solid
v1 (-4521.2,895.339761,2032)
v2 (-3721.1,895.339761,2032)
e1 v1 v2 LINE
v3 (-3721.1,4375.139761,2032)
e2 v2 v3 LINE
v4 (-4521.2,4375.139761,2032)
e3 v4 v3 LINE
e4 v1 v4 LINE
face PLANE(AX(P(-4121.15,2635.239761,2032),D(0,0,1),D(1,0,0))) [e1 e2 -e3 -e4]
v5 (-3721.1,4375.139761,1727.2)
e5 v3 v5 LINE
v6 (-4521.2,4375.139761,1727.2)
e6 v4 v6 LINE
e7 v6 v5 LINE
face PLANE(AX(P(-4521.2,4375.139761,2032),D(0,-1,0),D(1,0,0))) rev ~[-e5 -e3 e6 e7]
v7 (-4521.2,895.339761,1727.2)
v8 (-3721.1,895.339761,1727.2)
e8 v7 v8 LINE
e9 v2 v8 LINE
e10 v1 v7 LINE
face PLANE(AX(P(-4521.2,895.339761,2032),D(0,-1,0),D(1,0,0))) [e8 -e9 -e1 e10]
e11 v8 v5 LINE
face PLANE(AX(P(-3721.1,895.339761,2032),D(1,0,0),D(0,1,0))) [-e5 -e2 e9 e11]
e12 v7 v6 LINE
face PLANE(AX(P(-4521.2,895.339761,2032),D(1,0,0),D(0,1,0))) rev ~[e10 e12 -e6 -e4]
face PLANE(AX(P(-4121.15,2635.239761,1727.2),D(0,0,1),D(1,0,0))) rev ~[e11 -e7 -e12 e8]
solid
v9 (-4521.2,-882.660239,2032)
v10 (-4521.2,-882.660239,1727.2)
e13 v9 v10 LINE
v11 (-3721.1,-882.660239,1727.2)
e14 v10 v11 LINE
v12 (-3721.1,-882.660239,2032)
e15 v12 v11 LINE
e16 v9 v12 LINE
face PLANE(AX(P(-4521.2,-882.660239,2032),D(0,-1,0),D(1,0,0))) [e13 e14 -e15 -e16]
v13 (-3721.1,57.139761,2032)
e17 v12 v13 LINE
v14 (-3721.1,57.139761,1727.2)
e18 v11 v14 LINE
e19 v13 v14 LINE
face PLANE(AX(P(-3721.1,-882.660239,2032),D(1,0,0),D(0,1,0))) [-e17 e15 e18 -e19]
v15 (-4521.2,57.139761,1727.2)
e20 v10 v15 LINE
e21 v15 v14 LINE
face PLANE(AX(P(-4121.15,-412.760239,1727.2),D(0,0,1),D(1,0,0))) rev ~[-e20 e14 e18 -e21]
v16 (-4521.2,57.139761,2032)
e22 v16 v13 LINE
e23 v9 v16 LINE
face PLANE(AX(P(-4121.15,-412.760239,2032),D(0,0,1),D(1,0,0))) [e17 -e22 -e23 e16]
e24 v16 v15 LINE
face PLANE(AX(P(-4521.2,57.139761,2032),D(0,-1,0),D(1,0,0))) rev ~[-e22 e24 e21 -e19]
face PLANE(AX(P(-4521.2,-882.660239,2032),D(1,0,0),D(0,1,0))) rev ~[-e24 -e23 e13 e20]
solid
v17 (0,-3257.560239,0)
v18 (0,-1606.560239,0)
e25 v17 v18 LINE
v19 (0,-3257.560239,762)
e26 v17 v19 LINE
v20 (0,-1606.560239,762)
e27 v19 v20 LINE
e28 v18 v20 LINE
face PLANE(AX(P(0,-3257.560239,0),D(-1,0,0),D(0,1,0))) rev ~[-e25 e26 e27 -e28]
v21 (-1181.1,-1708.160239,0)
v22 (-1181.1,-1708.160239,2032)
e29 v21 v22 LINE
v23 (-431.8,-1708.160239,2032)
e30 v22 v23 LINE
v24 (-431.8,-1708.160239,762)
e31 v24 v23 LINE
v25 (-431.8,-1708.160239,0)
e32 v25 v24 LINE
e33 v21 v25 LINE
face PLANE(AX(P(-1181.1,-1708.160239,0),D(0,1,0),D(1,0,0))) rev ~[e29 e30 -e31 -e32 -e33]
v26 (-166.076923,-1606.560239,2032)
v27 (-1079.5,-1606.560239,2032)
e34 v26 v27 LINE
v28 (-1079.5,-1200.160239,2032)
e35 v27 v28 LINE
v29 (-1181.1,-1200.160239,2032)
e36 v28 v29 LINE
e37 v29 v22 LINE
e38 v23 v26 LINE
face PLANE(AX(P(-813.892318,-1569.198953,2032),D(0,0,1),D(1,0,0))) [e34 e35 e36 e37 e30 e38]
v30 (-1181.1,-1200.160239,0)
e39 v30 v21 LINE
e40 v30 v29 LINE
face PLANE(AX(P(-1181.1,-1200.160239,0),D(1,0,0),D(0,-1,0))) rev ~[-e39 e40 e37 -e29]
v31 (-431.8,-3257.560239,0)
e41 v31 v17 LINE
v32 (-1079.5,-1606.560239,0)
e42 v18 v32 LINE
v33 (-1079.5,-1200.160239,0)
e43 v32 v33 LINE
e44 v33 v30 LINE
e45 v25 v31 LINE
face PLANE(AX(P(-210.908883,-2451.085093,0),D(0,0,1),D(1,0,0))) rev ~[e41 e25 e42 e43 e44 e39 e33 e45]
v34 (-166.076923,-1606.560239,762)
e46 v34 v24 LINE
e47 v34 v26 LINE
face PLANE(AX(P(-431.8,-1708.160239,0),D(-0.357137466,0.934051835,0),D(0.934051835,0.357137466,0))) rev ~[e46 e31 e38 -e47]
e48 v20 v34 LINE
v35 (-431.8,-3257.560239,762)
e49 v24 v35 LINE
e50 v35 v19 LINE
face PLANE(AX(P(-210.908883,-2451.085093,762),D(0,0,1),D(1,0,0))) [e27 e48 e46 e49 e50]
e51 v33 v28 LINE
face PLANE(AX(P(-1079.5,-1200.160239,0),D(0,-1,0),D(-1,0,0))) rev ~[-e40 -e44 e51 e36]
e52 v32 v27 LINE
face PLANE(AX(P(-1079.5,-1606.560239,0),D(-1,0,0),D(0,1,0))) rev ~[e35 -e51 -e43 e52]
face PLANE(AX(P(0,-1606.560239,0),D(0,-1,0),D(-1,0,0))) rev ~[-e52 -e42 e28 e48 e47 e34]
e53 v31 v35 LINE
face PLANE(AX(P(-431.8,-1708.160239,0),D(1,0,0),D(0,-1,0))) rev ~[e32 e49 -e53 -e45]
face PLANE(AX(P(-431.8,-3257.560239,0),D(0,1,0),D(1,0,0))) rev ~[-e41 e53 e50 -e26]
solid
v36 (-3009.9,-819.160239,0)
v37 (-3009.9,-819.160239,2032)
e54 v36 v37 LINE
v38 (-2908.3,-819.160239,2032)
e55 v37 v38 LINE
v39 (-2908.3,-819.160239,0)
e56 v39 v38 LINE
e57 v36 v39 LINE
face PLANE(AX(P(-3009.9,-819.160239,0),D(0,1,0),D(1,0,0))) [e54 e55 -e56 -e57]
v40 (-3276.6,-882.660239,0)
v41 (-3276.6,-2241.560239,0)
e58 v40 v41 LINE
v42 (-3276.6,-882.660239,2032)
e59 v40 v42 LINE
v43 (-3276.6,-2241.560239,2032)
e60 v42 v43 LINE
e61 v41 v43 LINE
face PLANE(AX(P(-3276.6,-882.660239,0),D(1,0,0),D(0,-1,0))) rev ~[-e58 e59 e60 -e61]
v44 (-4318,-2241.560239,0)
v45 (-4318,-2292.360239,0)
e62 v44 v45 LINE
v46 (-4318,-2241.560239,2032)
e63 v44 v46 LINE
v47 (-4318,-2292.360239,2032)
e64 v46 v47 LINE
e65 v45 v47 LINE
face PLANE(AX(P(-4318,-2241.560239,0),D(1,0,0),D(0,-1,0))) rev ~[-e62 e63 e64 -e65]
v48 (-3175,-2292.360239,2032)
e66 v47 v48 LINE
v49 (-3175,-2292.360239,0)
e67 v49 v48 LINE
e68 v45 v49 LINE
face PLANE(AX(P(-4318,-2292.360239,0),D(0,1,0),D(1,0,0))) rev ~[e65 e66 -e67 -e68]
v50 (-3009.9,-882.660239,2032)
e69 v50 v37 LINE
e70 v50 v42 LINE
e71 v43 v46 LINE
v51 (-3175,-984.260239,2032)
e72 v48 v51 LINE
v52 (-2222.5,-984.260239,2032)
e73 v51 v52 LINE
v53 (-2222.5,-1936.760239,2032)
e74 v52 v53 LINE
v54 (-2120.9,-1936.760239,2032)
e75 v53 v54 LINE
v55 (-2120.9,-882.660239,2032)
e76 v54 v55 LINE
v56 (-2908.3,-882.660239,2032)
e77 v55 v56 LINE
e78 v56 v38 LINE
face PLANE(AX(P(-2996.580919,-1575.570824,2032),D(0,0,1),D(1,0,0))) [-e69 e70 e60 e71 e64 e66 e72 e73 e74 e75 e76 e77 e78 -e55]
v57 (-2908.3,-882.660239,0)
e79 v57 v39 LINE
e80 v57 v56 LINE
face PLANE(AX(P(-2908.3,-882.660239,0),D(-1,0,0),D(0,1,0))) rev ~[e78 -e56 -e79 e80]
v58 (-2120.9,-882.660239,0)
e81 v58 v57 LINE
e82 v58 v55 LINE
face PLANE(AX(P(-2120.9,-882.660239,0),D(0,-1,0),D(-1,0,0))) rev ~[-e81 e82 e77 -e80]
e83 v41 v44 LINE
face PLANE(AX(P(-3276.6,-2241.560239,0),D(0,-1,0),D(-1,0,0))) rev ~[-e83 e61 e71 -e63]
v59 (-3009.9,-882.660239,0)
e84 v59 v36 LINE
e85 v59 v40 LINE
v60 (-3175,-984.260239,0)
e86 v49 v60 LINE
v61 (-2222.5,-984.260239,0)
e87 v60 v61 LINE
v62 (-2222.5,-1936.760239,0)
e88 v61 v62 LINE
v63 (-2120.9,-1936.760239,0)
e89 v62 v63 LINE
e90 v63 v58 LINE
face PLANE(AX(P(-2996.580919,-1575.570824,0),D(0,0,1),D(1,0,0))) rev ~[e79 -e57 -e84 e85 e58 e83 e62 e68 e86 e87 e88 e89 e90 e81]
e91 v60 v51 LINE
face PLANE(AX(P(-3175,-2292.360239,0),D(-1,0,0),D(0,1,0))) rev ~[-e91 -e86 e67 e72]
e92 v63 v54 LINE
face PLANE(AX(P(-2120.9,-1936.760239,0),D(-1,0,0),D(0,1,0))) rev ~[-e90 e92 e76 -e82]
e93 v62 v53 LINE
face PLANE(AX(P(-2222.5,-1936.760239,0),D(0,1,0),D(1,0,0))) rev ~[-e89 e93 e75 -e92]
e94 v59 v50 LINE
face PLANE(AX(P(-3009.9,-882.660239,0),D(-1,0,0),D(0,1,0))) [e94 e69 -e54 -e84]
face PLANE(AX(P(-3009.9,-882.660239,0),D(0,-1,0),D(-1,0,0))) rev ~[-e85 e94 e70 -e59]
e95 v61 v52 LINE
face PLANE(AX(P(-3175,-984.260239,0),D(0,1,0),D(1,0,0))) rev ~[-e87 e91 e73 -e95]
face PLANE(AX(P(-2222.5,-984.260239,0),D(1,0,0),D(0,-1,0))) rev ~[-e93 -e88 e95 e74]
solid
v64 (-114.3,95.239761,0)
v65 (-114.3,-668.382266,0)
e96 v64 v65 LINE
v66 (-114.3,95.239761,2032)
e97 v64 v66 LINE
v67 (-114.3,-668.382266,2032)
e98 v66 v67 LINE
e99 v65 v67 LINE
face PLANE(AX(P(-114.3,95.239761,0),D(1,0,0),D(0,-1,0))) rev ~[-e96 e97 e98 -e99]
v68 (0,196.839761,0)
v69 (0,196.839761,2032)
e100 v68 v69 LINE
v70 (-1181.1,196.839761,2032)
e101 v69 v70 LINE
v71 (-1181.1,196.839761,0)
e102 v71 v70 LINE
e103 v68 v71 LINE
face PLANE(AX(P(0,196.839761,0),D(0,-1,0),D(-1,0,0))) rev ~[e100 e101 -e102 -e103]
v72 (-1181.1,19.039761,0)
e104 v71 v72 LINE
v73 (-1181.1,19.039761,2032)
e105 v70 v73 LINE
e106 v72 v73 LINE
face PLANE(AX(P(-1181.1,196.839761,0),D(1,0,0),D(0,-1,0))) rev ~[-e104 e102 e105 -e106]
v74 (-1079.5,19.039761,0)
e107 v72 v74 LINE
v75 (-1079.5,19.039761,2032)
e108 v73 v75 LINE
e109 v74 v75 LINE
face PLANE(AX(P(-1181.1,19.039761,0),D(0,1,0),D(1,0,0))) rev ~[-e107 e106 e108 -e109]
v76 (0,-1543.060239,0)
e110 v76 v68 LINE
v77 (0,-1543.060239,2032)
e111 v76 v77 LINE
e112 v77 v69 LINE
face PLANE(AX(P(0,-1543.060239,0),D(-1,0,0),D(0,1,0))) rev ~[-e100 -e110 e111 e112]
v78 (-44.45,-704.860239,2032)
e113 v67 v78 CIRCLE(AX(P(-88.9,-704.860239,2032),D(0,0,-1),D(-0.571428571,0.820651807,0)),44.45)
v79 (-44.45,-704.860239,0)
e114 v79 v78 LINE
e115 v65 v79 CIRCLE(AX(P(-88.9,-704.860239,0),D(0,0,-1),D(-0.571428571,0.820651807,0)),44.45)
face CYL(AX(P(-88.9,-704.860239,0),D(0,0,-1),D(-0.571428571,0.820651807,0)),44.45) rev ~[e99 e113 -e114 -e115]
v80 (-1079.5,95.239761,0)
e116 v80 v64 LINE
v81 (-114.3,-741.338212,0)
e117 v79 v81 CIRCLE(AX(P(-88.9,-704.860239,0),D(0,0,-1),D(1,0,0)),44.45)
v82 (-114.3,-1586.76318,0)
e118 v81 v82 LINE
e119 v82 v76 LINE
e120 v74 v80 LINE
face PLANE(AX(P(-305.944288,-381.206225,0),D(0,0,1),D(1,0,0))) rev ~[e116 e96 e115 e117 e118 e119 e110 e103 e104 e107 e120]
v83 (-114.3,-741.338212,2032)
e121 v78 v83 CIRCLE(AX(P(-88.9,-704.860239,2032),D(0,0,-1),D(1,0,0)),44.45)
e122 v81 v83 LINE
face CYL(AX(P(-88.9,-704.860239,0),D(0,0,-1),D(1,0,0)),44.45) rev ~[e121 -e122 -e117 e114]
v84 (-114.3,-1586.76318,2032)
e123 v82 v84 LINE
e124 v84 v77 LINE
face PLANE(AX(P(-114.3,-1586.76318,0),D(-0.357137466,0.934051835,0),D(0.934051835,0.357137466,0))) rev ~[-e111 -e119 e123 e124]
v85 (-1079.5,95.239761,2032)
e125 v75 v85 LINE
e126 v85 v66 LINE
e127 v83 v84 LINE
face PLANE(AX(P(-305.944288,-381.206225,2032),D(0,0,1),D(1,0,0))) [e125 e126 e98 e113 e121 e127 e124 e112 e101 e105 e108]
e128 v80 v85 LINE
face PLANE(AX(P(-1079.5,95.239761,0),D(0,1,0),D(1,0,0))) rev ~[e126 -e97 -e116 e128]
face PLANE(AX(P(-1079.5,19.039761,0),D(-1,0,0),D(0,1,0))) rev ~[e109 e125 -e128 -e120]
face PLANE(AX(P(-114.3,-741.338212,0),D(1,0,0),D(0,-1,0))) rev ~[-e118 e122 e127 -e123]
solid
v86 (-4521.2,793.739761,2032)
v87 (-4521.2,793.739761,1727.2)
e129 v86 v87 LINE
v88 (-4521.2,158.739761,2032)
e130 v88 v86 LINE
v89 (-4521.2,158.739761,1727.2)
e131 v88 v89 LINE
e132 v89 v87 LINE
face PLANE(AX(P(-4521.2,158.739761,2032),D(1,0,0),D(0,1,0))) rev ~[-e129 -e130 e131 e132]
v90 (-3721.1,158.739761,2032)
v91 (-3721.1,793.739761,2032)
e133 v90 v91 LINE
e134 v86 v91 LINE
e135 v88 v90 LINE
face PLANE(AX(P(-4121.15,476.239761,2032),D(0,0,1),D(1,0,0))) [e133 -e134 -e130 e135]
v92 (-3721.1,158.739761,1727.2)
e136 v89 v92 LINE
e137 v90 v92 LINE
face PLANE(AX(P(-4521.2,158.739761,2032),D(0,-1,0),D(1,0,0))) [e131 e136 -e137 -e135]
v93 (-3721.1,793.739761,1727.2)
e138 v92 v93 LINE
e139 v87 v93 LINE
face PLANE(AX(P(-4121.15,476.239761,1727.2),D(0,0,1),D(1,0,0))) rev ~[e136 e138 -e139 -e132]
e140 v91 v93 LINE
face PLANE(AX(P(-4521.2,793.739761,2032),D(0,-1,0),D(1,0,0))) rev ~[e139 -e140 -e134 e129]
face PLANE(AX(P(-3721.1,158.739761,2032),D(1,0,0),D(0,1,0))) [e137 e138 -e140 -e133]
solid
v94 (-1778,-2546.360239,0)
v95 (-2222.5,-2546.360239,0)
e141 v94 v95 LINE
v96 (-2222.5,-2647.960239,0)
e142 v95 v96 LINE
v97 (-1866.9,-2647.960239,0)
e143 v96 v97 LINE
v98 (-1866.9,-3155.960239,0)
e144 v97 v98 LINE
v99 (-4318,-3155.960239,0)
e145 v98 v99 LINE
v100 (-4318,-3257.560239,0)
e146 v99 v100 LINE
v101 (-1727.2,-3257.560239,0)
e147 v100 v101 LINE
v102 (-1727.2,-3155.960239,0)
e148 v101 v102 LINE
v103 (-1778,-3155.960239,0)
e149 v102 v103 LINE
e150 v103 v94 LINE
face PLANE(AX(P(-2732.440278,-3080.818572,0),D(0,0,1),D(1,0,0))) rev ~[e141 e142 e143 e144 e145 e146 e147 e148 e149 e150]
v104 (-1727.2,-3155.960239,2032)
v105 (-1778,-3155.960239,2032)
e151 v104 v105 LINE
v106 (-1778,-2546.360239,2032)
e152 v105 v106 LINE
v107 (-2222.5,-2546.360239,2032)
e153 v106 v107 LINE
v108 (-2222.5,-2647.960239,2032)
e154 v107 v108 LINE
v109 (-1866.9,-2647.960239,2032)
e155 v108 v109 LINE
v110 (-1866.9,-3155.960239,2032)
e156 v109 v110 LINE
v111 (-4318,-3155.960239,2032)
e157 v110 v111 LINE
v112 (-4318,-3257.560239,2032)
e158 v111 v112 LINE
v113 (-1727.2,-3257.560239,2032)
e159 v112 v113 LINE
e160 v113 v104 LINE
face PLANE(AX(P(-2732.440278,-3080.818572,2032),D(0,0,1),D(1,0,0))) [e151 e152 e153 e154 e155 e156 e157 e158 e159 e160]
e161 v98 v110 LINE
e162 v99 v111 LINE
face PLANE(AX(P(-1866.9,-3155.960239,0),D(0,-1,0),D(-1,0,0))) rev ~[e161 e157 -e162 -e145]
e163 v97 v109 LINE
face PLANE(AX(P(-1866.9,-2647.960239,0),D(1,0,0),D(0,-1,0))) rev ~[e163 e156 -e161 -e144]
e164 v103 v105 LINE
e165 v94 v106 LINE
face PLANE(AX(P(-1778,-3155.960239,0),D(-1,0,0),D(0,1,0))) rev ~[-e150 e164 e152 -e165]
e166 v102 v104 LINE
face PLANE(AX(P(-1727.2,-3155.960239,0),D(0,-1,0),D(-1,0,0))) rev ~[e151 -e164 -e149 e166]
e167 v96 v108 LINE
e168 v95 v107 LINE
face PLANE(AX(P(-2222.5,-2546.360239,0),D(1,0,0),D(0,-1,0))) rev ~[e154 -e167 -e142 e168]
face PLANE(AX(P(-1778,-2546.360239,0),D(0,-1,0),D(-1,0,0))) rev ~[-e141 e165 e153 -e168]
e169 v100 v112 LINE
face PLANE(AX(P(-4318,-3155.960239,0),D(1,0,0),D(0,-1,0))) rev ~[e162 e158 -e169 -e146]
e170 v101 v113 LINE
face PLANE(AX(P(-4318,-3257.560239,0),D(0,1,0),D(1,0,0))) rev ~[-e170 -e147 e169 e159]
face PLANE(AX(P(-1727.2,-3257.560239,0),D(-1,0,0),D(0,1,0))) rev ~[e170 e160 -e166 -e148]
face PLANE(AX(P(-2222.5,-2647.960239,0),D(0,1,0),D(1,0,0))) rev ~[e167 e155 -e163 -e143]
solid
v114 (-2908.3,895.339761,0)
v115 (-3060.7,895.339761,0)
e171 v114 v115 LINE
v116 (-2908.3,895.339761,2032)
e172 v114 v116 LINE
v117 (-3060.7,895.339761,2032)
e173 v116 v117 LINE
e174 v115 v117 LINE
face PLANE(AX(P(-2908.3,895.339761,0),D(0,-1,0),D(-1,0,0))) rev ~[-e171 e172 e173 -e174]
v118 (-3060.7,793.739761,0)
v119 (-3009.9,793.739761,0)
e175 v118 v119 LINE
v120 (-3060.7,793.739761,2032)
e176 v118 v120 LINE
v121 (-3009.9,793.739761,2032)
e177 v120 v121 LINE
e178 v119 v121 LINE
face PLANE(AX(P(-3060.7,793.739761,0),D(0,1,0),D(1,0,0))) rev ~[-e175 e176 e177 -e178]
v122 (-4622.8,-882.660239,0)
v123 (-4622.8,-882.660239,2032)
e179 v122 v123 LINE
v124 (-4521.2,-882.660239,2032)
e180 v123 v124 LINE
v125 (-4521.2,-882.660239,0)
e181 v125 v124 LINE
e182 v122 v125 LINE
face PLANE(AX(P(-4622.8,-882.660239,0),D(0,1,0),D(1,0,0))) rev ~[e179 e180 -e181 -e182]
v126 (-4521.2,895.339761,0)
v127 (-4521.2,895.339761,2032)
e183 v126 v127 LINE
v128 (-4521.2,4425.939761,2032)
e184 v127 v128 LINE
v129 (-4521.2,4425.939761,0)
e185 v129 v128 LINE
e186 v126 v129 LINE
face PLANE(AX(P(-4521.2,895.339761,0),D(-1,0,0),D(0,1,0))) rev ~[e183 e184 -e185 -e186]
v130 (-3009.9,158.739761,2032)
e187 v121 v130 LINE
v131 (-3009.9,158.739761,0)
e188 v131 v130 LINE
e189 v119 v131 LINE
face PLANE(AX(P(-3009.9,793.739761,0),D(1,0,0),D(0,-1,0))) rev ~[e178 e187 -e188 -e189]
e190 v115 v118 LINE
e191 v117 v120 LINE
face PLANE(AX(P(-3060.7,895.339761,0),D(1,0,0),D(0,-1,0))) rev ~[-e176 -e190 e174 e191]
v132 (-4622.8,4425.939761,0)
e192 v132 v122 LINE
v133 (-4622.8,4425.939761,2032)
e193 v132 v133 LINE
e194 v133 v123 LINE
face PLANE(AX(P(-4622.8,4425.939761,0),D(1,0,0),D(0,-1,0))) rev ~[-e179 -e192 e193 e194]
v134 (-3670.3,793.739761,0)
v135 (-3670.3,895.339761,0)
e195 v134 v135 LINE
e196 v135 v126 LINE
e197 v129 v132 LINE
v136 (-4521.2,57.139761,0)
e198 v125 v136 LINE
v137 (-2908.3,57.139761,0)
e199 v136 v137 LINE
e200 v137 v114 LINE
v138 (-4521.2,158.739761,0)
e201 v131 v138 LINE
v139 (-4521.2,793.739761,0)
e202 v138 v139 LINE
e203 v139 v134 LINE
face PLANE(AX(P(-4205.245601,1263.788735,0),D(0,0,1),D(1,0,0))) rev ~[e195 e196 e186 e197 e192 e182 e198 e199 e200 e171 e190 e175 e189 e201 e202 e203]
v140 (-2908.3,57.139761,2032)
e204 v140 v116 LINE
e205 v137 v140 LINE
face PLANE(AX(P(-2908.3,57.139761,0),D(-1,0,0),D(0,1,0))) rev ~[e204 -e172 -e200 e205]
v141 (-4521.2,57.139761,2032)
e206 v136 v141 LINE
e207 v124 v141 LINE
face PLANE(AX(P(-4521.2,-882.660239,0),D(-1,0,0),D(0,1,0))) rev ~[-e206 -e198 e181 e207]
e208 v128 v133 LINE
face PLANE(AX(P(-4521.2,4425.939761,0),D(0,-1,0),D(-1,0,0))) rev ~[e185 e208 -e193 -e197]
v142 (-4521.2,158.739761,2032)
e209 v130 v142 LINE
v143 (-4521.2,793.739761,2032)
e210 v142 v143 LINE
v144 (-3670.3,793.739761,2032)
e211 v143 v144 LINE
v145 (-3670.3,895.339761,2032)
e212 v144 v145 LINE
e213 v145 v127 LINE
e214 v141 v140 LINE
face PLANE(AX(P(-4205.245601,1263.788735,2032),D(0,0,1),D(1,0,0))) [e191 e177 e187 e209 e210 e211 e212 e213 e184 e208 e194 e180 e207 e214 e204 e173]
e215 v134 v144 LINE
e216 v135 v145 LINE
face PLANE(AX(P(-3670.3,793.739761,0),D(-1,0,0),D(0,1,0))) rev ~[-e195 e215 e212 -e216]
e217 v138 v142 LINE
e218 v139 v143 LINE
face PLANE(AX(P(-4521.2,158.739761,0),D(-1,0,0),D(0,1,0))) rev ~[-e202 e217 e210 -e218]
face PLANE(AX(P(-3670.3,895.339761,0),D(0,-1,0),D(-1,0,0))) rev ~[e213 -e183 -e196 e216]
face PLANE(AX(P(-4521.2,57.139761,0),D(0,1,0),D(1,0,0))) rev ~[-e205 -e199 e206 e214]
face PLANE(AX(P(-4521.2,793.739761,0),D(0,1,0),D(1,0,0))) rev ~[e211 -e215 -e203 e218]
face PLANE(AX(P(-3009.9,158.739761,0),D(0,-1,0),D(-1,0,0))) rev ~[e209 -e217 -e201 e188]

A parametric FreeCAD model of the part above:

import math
import FreeCAD as App
import Part
import Sketcher
from FreeCAD import Vector
Q = App.Units.Quantity

doc = App.newDocument("Part")
body = doc.addObject("PartDesign::Body", "Body")

# Sketch on XY plane
sketch1 = body.newObject("Sketcher::SketchObject", "Sketch")
sketch1.AttachmentSupport = (doc.getObject("XY_Plane"), [""])
sketch1.MapMode = "FlatFace"
sketch1.addGeometry(Part.LineSegment(Vector(0, 196.839761, 0), Vector(-1181.1, 196.839761, 0)), False)
sketch1.addGeometry(Part.LineSegment(Vector(-1181.1, 196.839761, 0), Vector(-1181.1, 19.039761, 0)), False)
sketch1.addGeometry(Part.LineSegment(Vector(-1181.1, 19.039761, 0), Vector(-1079.5, 19.039761, 0)), False)
sketch1.addGeometry(Part.LineSegment(Vector(-1079.5, 19.039761, 0), Vector(-1079.5, 95.239761, 0)), False)
sketch1.addGeometry(Part.LineSegment(Vector(-1079.5, 95.239761, 0), Vector(-114.3, 95.239761, 0)), False)
sketch1.addGeometry(Part.LineSegment(Vector(-114.3, 95.239761, 0), Vector(-114.3, -668.382266, 0)), False)
sketch1.addGeometry(Part.ArcOfCircle(Part.Circle(Vector(-88.9, -704.860239, 0), Vector(0, 0, 1), 44.45), math.radians(0), math.radians(124.849905)), False)
sketch1.addGeometry(Part.ArcOfCircle(Part.Circle(Vector(-88.9, -704.860239, 0), Vector(0, 0, 1), 44.45), math.radians(-124.849905), math.radians(0)), False)
sketch1.addGeometry(Part.LineSegment(Vector(-114.3, -741.338212, 0), Vector(-114.3, -1586.76318, 0)), False)
sketch1.addGeometry(Part.LineSegment(Vector(-114.3, -1586.76318, 0), Vector(0, -1543.060239, 0)), False)
sketch1.addGeometry(Part.LineSegment(Vector(0, -1543.060239, 0), Vector(0, 196.839761, 0)), False)
sketch1.addConstraint(Sketcher.Constraint("Coincident", 0, 2, 1, 1))
sketch1.addConstraint(Sketcher.Constraint("Coincident", 1, 2, 2, 1))
sketch1.addConstraint(Sketcher.Constraint("Coincident", 2, 2, 3, 1))
sketch1.addConstraint(Sketcher.Constraint("Coincident", 3, 2, 4, 1))
sketch1.addConstraint(Sketcher.Constraint("Coincident", 4, 2, 5, 1))
sketch1.addConstraint(Sketcher.Constraint("Coincident", 5, 2, 6, 2))
sketch1.addConstraint(Sketcher.Constraint("Tangent", 6, 1, 7, 2))
sketch1.addConstraint(Sketcher.Constraint("Coincident", 7, 1, 8, 1))
sketch1.addConstraint(Sketcher.Constraint("Coincident", 8, 2, 9, 1))
sketch1.addConstraint(Sketcher.Constraint("Coincident", 9, 2, 10, 1))
sketch1.addConstraint(Sketcher.Constraint("Coincident", 10, 2, 0, 1))
sketch1.addConstraint(Sketcher.Constraint("Horizontal", 0))
sketch1.addConstraint(Sketcher.Constraint("Vertical", 1))
sketch1.addConstraint(Sketcher.Constraint("Horizontal", 2))
sketch1.addConstraint(Sketcher.Constraint("Vertical", 3))
sketch1.addConstraint(Sketcher.Constraint("Horizontal", 4))
sketch1.addConstraint(Sketcher.Constraint("Vertical", 5))
sketch1.addConstraint(Sketcher.Constraint("Vertical", 8))
sketch1.addConstraint(Sketcher.Constraint("Vertical", 10))
sketch1.addConstraint(Sketcher.Constraint("Equal", 6, 7))
sketch1.addConstraint(Sketcher.Constraint("PointOnObject", 9, 2, -2))
sketch1.addConstraint(Sketcher.Constraint("Horizontal", 7, 3, 6, 1))
sketch1.addConstraint(Sketcher.Constraint("Vertical", 5, 2, 7, 1))
sketch1.addConstraint(Sketcher.Constraint("DistanceX", 2, 1, 2, 2, Q("4 in")))
sketch1.addConstraint(Sketcher.Constraint("DistanceX", 4, 1, 4, 2, Q("38 in")))
sketch1.addConstraint(Sketcher.Constraint("DistanceY", 1, 2, 1, 1, Q("7 in")))
sketch1.addConstraint(Sketcher.Constraint("DistanceY", 3, 1, 3, 2, Q("3 in")))
sketch1.addConstraint(Sketcher.Constraint("Radius", 6, Q("1.75 in")))
sketch1.addConstraint(Sketcher.Constraint("DistanceX", 0, 2, 0, 1, Q("46.5 in")))
sketch1.addConstraint(Sketcher.Constraint("DistanceY", 10, 1, 10, 2, Q("68.5 in")))
sketch1.addConstraint(Sketcher.Constraint("DistanceX", 0, 2, 6, 3, Q("43 in")))
sketch1.addConstraint(Sketcher.Constraint("DistanceY", 9, 2, 6, 1, Q("33 in")))
sketch1.addConstraint(Sketcher.Constraint("DistanceY", 8, 2, 8, 1, 845.424968))
sketch1.addConstraint(Sketcher.Constraint("DistanceY", 6, 3, -1, 1, 704.860239))
pad1 = body.newObject("PartDesign::Pad", "Pad")
pad1.Profile = sketch1
pad1.Length = Q("80 in")
body2 = doc.addObject("PartDesign::Body", "Body001")

# Sketch on XY plane
sketch2 = body2.newObject("Sketcher::SketchObject", "Sketch001")
sketch2.AttachmentSupport = (doc.getObject("XY_Plane001"), [""])
sketch2.MapMode = "FlatFace"
sketch2.addGeometry(Part.LineSegment(Vector(-431.8, -1708.160239, 0), Vector(-166.076923, -1606.560239, 0)), False)
sketch2.addGeometry(Part.LineSegment(Vector(-166.076923, -1606.560239, 0), Vector(-1079.5, -1606.560239, 0)), False)
sketch2.addGeometry(Part.LineSegment(Vector(-1079.5, -1606.560239, 0), Vector(-1079.5, -1200.160239, 0)), False)
sketch2.addGeometry(Part.LineSegment(Vector(-1079.5, -1200.160239, 0), Vector(-1181.1, -1200.160239, 0)), False)
sketch2.addGeometry(Part.LineSegment(Vector(-1181.1, -1200.160239, 0), Vector(-1181.1, -1708.160239, 0)), False)
sketch2.addGeometry(Part.LineSegment(Vector(-1181.1, -1708.160239, 0), Vector(-431.8, -1708.160239, 0)), False)
sketch2.addConstraint(Sketcher.Constraint("Coincident", 0, 2, 1, 1))
sketch2.addConstraint(Sketcher.Constraint("Coincident", 1, 2, 2, 1))
sketch2.addConstraint(Sketcher.Constraint("Coincident", 2, 2, 3, 1))
sketch2.addConstraint(Sketcher.Constraint("Coincident", 3, 2, 4, 1))
sketch2.addConstraint(Sketcher.Constraint("Coincident", 4, 2, 5, 1))
sketch2.addConstraint(Sketcher.Constraint("Coincident", 5, 2, 0, 1))
sketch2.addConstraint(Sketcher.Constraint("Horizontal", 1))
sketch2.addConstraint(Sketcher.Constraint("Vertical", 2))
sketch2.addConstraint(Sketcher.Constraint("Horizontal", 3))
sketch2.addConstraint(Sketcher.Constraint("Vertical", 4))
sketch2.addConstraint(Sketcher.Constraint("Horizontal", 5))
sketch2.addConstraint(Sketcher.Constraint("DistanceX", 3, 2, 3, 1, Q("4 in")))
sketch2.addConstraint(Sketcher.Constraint("DistanceY", 2, 1, 2, 2, Q("16 in")))
sketch2.addConstraint(Sketcher.Constraint("DistanceY", 4, 2, 4, 1, Q("20 in")))
sketch2.addConstraint(Sketcher.Constraint("DistanceX", 5, 1, 5, 2, Q("29.5 in")))
sketch2.addConstraint(Sketcher.Constraint("DistanceX", 5, 2, -1, 1, Q("17 in")))
sketch2.addConstraint(Sketcher.Constraint("DistanceX", 1, 2, 1, 1, 913.423077))
sketch2.addConstraint(Sketcher.Constraint("DistanceY", 0, 2, -1, 1, 1606.560239))
pad2 = body2.newObject("PartDesign::Pad", "Pad001")
pad2.Profile = sketch2
pad2.Length = Q("80 in")

# Sketch on XY plane
sketch3 = body2.newObject("Sketcher::SketchObject", "Sketch002")
sketch3.AttachmentSupport = (doc.getObject("XY_Plane001"), [""])
sketch3.MapMode = "FlatFace"
sketch3.addGeometry(Part.LineSegment(Vector(0, -1606.560239, 0), Vector(-166.076923, -1606.560239, 0)), False)
sketch3.addGeometry(Part.LineSegment(Vector(-166.076923, -1606.560239, 0), Vector(-431.8, -1708.160239, 0)), False)
sketch3.addGeometry(Part.LineSegment(Vector(-431.8, -1708.160239, 0), Vector(-431.8, -3257.560239, 0)), False)
sketch3.addGeometry(Part.LineSegment(Vector(-431.8, -3257.560239, 0), Vector(0, -3257.560239, 0)), False)
sketch3.addGeometry(Part.LineSegment(Vector(0, -3257.560239, 0), Vector(0, -1606.560239, 0)), False)
sketch3.addConstraint(Sketcher.Constraint("Coincident", 0, 2, 1, 1))
sketch3.addConstraint(Sketcher.Constraint("Coincident", 1, 2, 2, 1))
sketch3.addConstraint(Sketcher.Constraint("Coincident", 2, 2, 3, 1))
sketch3.addConstraint(Sketcher.Constraint("Coincident", 3, 2, 4, 1))
sketch3.addConstraint(Sketcher.Constraint("Coincident", 4, 2, 0, 1))
sketch3.addConstraint(Sketcher.Constraint("Horizontal", 0))
sketch3.addConstraint(Sketcher.Constraint("Vertical", 2))
sketch3.addConstraint(Sketcher.Constraint("Horizontal", 3))
sketch3.addConstraint(Sketcher.Constraint("Vertical", 4))
sketch3.addConstraint(Sketcher.Constraint("PointOnObject", 3, 2, -2))
sketch3.addConstraint(Sketcher.Constraint("DistanceX", 3, 1, 3, 2, Q("17 in")))
sketch3.addConstraint(Sketcher.Constraint("DistanceY", 2, 2, 2, 1, Q("61 in")))
sketch3.addConstraint(Sketcher.Constraint("DistanceY", 4, 1, 4, 2, Q("65 in")))
sketch3.addConstraint(Sketcher.Constraint("DistanceX", 0, 2, 0, 1, 166.076923))
sketch3.addConstraint(Sketcher.Constraint("DistanceY", 0, 2, -1, 1, 1606.560239))
pad3 = body2.newObject("PartDesign::Pad", "Pad002")
pad3.Profile = sketch3
pad3.Length = Q("30 in")
body3 = doc.addObject("PartDesign::Body", "Body002")

# Sketch on XY plane
sketch4 = body3.newObject("Sketcher::SketchObject", "Sketch003")
sketch4.AttachmentSupport = (doc.getObject("XY_Plane002"), [""])
sketch4.MapMode = "FlatFace"
sketch4.addGeometry(Part.LineSegment(Vector(-4318, -2241.560239, 0), Vector(-4318, -2292.360239, 0)), False)
sketch4.addGeometry(Part.LineSegment(Vector(-4318, -2292.360239, 0), Vector(-3175, -2292.360239, 0)), False)
sketch4.addGeometry(Part.LineSegment(Vector(-3175, -2292.360239, 0), Vector(-3175, -984.260239, 0)), False)
sketch4.addGeometry(Part.LineSegment(Vector(-3175, -984.260239, 0), Vector(-2222.5, -984.260239, 0)), False)
sketch4.addGeometry(Part.LineSegment(Vector(-2222.5, -984.260239, 0), Vector(-2222.5, -1936.760239, 0)), False)
sketch4.addGeometry(Part.LineSegment(Vector(-2222.5, -1936.760239, 0), Vector(-2120.9, -1936.760239, 0)), False)
sketch4.addGeometry(Part.LineSegment(Vector(-2120.9, -1936.760239, 0), Vector(-2120.9, -882.660239, 0)), False)
sketch4.addGeometry(Part.LineSegment(Vector(-2120.9, -882.660239, 0), Vector(-2908.3, -882.660239, 0)), False)
sketch4.addGeometry(Part.LineSegment(Vector(-2908.3, -882.660239, 0), Vector(-2908.3, -819.160239, 0)), False)
sketch4.addGeometry(Part.LineSegment(Vector(-2908.3, -819.160239, 0), Vector(-3009.9, -819.160239, 0)), False)
sketch4.addGeometry(Part.LineSegment(Vector(-3009.9, -819.160239, 0), Vector(-3009.9, -882.660239, 0)), False)
sketch4.addGeometry(Part.LineSegment(Vector(-3009.9, -882.660239, 0), Vector(-3276.6, -882.660239, 0)), False)
sketch4.addGeometry(Part.LineSegment(Vector(-3276.6, -882.660239, 0), Vector(-3276.6, -2241.560239, 0)), False)
sketch4.addGeometry(Part.LineSegment(Vector(-3276.6, -2241.560239, 0), Vector(-4318, -2241.560239, 0)), False)
sketch4.addConstraint(Sketcher.Constraint("Coincident", 0, 2, 1, 1))
sketch4.addConstraint(Sketcher.Constraint("Coincident", 1, 2, 2, 1))
sketch4.addConstraint(Sketcher.Constraint("Coincident", 2, 2, 3, 1))
sketch4.addConstraint(Sketcher.Constraint("Coincident", 3, 2, 4, 1))
sketch4.addConstraint(Sketcher.Constraint("Coincident", 4, 2, 5, 1))
sketch4.addConstraint(Sketcher.Constraint("Coincident", 5, 2, 6, 1))
sketch4.addConstraint(Sketcher.Constraint("Coincident", 6, 2, 7, 1))
sketch4.addConstraint(Sketcher.Constraint("Coincident", 7, 2, 8, 1))
sketch4.addConstraint(Sketcher.Constraint("Coincident", 8, 2, 9, 1))
sketch4.addConstraint(Sketcher.Constraint("Coincident", 9, 2, 10, 1))
sketch4.addConstraint(Sketcher.Constraint("Coincident", 10, 2, 11, 1))
sketch4.addConstraint(Sketcher.Constraint("Coincident", 11, 2, 12, 1))
sketch4.addConstraint(Sketcher.Constraint("Coincident", 12, 2, 13, 1))
sketch4.addConstraint(Sketcher.Constraint("Coincident", 13, 2, 0, 1))
sketch4.addConstraint(Sketcher.Constraint("Vertical", 0))
sketch4.addConstraint(Sketcher.Constraint("Horizontal", 1))
sketch4.addConstraint(Sketcher.Constraint("Vertical", 2))
sketch4.addConstraint(Sketcher.Constraint("Horizontal", 3))
sketch4.addConstraint(Sketcher.Constraint("Vertical", 4))
sketch4.addConstraint(Sketcher.Constraint("Horizontal", 5))
sketch4.addConstraint(Sketcher.Constraint("Vertical", 6))
sketch4.addConstraint(Sketcher.Constraint("Horizontal", 7))
sketch4.addConstraint(Sketcher.Constraint("Vertical", 8))
sketch4.addConstraint(Sketcher.Constraint("Horizontal", 9))
sketch4.addConstraint(Sketcher.Constraint("Vertical", 10))
sketch4.addConstraint(Sketcher.Constraint("Horizontal", 11))
sketch4.addConstraint(Sketcher.Constraint("Vertical", 12))
sketch4.addConstraint(Sketcher.Constraint("Horizontal", 13))
sketch4.addConstraint(Sketcher.Constraint("Horizontal", 7, 2, 10, 2))
sketch4.addConstraint(Sketcher.Constraint("Equal", 5, 9))
sketch4.addConstraint(Sketcher.Constraint("Equal", 3, 4))
sketch4.addConstraint(Sketcher.Constraint("DistanceX", 1, 1, 1, 2, Q("45 in")))
sketch4.addConstraint(Sketcher.Constraint("DistanceX", 5, 1, 5, 2, Q("4 in")))
sketch4.addConstraint(Sketcher.Constraint("DistanceX", 7, 2, 7, 1, Q("31 in")))
sketch4.addConstraint(Sketcher.Constraint("DistanceX", 13, 2, 13, 1, Q("41 in")))
sketch4.addConstraint(Sketcher.Constraint("DistanceY", 0, 2, 0, 1, Q("2 in")))
sketch4.addConstraint(Sketcher.Constraint("DistanceX", 3, 1, 3, 2, Q("37.5 in")))
sketch4.addConstraint(Sketcher.Constraint("DistanceY", 2, 1, 2, 2, Q("51.5 in")))
sketch4.addConstraint(Sketcher.Constraint("DistanceY", 6, 1, 6, 2, Q("41.5 in")))
sketch4.addConstraint(Sketcher.Constraint("DistanceY", 8, 1, 8, 2, Q("2.5 in")))
sketch4.addConstraint(Sketcher.Constraint("DistanceX", 0, 2, -1, 1, Q("170 in")))
sketch4.addConstraint(Sketcher.Constraint("DistanceY", 0, 2, -1, 1, 2292.360239))
pad4 = body3.newObject("PartDesign::Pad", "Pad003")
pad4.Profile = sketch4
pad4.Length = Q("80 in")
body4 = doc.addObject("PartDesign::Body", "Body003")

# Sketch on XY plane
sketch5 = body4.newObject("Sketcher::SketchObject", "Sketch004")
sketch5.AttachmentSupport = (doc.getObject("XY_Plane003"), [""])
sketch5.MapMode = "FlatFace"
sketch5.addGeometry(Part.LineSegment(Vector(-1727.2, -3257.560239, 0), Vector(-1727.2, -3155.960239, 0)), False)
sketch5.addGeometry(Part.LineSegment(Vector(-1727.2, -3155.960239, 0), Vector(-1778, -3155.960239, 0)), False)
sketch5.addGeometry(Part.LineSegment(Vector(-1778, -3155.960239, 0), Vector(-1778, -2546.360239, 0)), False)
sketch5.addGeometry(Part.LineSegment(Vector(-1778, -2546.360239, 0), Vector(-2222.5, -2546.360239, 0)), False)
sketch5.addGeometry(Part.LineSegment(Vector(-2222.5, -2546.360239, 0), Vector(-2222.5, -2647.960239, 0)), False)
sketch5.addGeometry(Part.LineSegment(Vector(-2222.5, -2647.960239, 0), Vector(-1866.9, -2647.960239, 0)), False)
sketch5.addGeometry(Part.LineSegment(Vector(-1866.9, -2647.960239, 0), Vector(-1866.9, -3155.960239, 0)), False)
sketch5.addGeometry(Part.LineSegment(Vector(-1866.9, -3155.960239, 0), Vector(-4318, -3155.960239, 0)), False)
sketch5.addGeometry(Part.LineSegment(Vector(-4318, -3155.960239, 0), Vector(-4318, -3257.560239, 0)), False)
sketch5.addGeometry(Part.LineSegment(Vector(-4318, -3257.560239, 0), Vector(-1727.2, -3257.560239, 0)), False)
sketch5.addConstraint(Sketcher.Constraint("Coincident", 0, 2, 1, 1))
sketch5.addConstraint(Sketcher.Constraint("Coincident", 1, 2, 2, 1))
sketch5.addConstraint(Sketcher.Constraint("Coincident", 2, 2, 3, 1))
sketch5.addConstraint(Sketcher.Constraint("Coincident", 3, 2, 4, 1))
sketch5.addConstraint(Sketcher.Constraint("Coincident", 4, 2, 5, 1))
sketch5.addConstraint(Sketcher.Constraint("Coincident", 5, 2, 6, 1))
sketch5.addConstraint(Sketcher.Constraint("Coincident", 6, 2, 7, 1))
sketch5.addConstraint(Sketcher.Constraint("Coincident", 7, 2, 8, 1))
sketch5.addConstraint(Sketcher.Constraint("Coincident", 8, 2, 9, 1))
sketch5.addConstraint(Sketcher.Constraint("Coincident", 9, 2, 0, 1))
sketch5.addConstraint(Sketcher.Constraint("Vertical", 0))
sketch5.addConstraint(Sketcher.Constraint("Horizontal", 1))
sketch5.addConstraint(Sketcher.Constraint("Vertical", 2))
sketch5.addConstraint(Sketcher.Constraint("Horizontal", 3))
sketch5.addConstraint(Sketcher.Constraint("Vertical", 4))
sketch5.addConstraint(Sketcher.Constraint("Horizontal", 5))
sketch5.addConstraint(Sketcher.Constraint("Vertical", 6))
sketch5.addConstraint(Sketcher.Constraint("Horizontal", 7))
sketch5.addConstraint(Sketcher.Constraint("Vertical", 8))
sketch5.addConstraint(Sketcher.Constraint("Horizontal", 9))
sketch5.addConstraint(Sketcher.Constraint("Horizontal", 1, 2, 6, 2))
sketch5.addConstraint(Sketcher.Constraint("Equal", 0, 4))
sketch5.addConstraint(Sketcher.Constraint("DistanceX", 1, 2, 1, 1, Q("2 in")))
sketch5.addConstraint(Sketcher.Constraint("DistanceX", 5, 1, 5, 2, Q("14 in")))
sketch5.addConstraint(Sketcher.Constraint("DistanceX", 9, 1, 9, 2, Q("102 in")))
sketch5.addConstraint(Sketcher.Constraint("DistanceY", 0, 1, 0, 2, Q("4 in")))
sketch5.addConstraint(Sketcher.Constraint("DistanceY", 2, 1, 2, 2, Q("24 in")))
sketch5.addConstraint(Sketcher.Constraint("DistanceX", 3, 2, 3, 1, Q("17.5 in")))
sketch5.addConstraint(Sketcher.Constraint("DistanceX", 0, 2, -1, 1, Q("68 in")))
sketch5.addConstraint(Sketcher.Constraint("DistanceY", 0, 2, -1, 1, 3155.960239))
pad5 = body4.newObject("PartDesign::Pad", "Pad004")
pad5.Profile = sketch5
pad5.Length = Q("80 in")
body5 = doc.addObject("PartDesign::Body", "Body004")

# Sketch on XY plane
sketch6 = body5.newObject("Sketcher::SketchObject", "Sketch005")
sketch6.AttachmentSupport = (doc.getObject("XY_Plane004"), [""])
sketch6.MapMode = "FlatFace"
sketch6.addGeometry(Part.LineSegment(Vector(-4622.8, -882.660239, 0), Vector(-4521.2, -882.660239, 0)), False)
sketch6.addGeometry(Part.LineSegment(Vector(-4521.2, -882.660239, 0), Vector(-4521.2, 57.139761, 0)), False)
sketch6.addGeometry(Part.LineSegment(Vector(-4521.2, 57.139761, 0), Vector(-2908.3, 57.139761, 0)), False)
sketch6.addGeometry(Part.LineSegment(Vector(-2908.3, 57.139761, 0), Vector(-2908.3, 895.339761, 0)), False)
sketch6.addGeometry(Part.LineSegment(Vector(-2908.3, 895.339761, 0), Vector(-3060.7, 895.339761, 0)), False)
sketch6.addGeometry(Part.LineSegment(Vector(-3060.7, 895.339761, 0), Vector(-3060.7, 793.739761, 0)), False)
sketch6.addGeometry(Part.LineSegment(Vector(-3060.7, 793.739761, 0), Vector(-3009.9, 793.739761, 0)), False)
sketch6.addGeometry(Part.LineSegment(Vector(-3009.9, 793.739761, 0), Vector(-3009.9, 158.739761, 0)), False)
sketch6.addGeometry(Part.LineSegment(Vector(-3009.9, 158.739761, 0), Vector(-4521.2, 158.739761, 0)), False)
sketch6.addGeometry(Part.LineSegment(Vector(-4521.2, 158.739761, 0), Vector(-4521.2, 793.739761, 0)), False)
sketch6.addGeometry(Part.LineSegment(Vector(-4521.2, 793.739761, 0), Vector(-3670.3, 793.739761, 0)), False)
sketch6.addGeometry(Part.LineSegment(Vector(-3670.3, 793.739761, 0), Vector(-3670.3, 895.339761, 0)), False)
sketch6.addGeometry(Part.LineSegment(Vector(-3670.3, 895.339761, 0), Vector(-4521.2, 895.339761, 0)), False)
sketch6.addGeometry(Part.LineSegment(Vector(-4521.2, 895.339761, 0), Vector(-4521.2, 4425.939761, 0)), False)
sketch6.addGeometry(Part.LineSegment(Vector(-4521.2, 4425.939761, 0), Vector(-4622.8, 4425.939761, 0)), False)
sketch6.addGeometry(Part.LineSegment(Vector(-4622.8, 4425.939761, 0), Vector(-4622.8, -882.660239, 0)), False)
sketch6.addConstraint(Sketcher.Constraint("Coincident", 0, 2, 1, 1))
sketch6.addConstraint(Sketcher.Constraint("Coincident", 1, 2, 2, 1))
sketch6.addConstraint(Sketcher.Constraint("Coincident", 2, 2, 3, 1))
sketch6.addConstraint(Sketcher.Constraint("Coincident", 3, 2, 4, 1))
sketch6.addConstraint(Sketcher.Constraint("Coincident", 4, 2, 5, 1))
sketch6.addConstraint(Sketcher.Constraint("Coincident", 5, 2, 6, 1))
sketch6.addConstraint(Sketcher.Constraint("Coincident", 6, 2, 7, 1))
sketch6.addConstraint(Sketcher.Constraint("Coincident", 7, 2, 8, 1))
sketch6.addConstraint(Sketcher.Constraint("Coincident", 8, 2, 9, 1))
sketch6.addConstraint(Sketcher.Constraint("Coincident", 9, 2, 10, 1))
sketch6.addConstraint(Sketcher.Constraint("Coincident", 10, 2, 11, 1))
sketch6.addConstraint(Sketcher.Constraint("Coincident", 11, 2, 12, 1))
sketch6.addConstraint(Sketcher.Constraint("Coincident", 12, 2, 13, 1))
sketch6.addConstraint(Sketcher.Constraint("Coincident", 13, 2, 14, 1))
sketch6.addConstraint(Sketcher.Constraint("Coincident", 14, 2, 15, 1))
sketch6.addConstraint(Sketcher.Constraint("Coincident", 15, 2, 0, 1))
sketch6.addConstraint(Sketcher.Constraint("Horizontal", 0))
sketch6.addConstraint(Sketcher.Constraint("Vertical", 1))
sketch6.addConstraint(Sketcher.Constraint("Horizontal", 2))
sketch6.addConstraint(Sketcher.Constraint("Vertical", 3))
sketch6.addConstraint(Sketcher.Constraint("Horizontal", 4))
sketch6.addConstraint(Sketcher.Constraint("Vertical", 5))
sketch6.addConstraint(Sketcher.Constraint("Horizontal", 6))
sketch6.addConstraint(Sketcher.Constraint("Vertical", 7))
sketch6.addConstraint(Sketcher.Constraint("Horizontal", 8))
sketch6.addConstraint(Sketcher.Constraint("Vertical", 9))
sketch6.addConstraint(Sketcher.Constraint("Horizontal", 10))
sketch6.addConstraint(Sketcher.Constraint("Vertical", 11))
sketch6.addConstraint(Sketcher.Constraint("Horizontal", 12))
sketch6.addConstraint(Sketcher.Constraint("Vertical", 13))
sketch6.addConstraint(Sketcher.Constraint("Horizontal", 14))
sketch6.addConstraint(Sketcher.Constraint("Vertical", 15))
sketch6.addConstraint(Sketcher.Constraint("Horizontal", 6, 2, 9, 2))
sketch6.addConstraint(Sketcher.Constraint("Horizontal", 4, 2, 11, 2))
sketch6.addConstraint(Sketcher.Constraint("Vertical", 1, 2, 8, 2))
sketch6.addConstraint(Sketcher.Constraint("Vertical", 9, 2, 12, 2))
sketch6.addConstraint(Sketcher.Constraint("Equal", 14, 5))
sketch6.addConstraint(Sketcher.Constraint("DistanceX", 0, 1, 0, 2, Q("4 in")))
sketch6.addConstraint(Sketcher.Constraint("DistanceX", 4, 2, 4, 1, Q("6 in")))
sketch6.addConstraint(Sketcher.Constraint("DistanceX", 6, 1, 6, 2, Q("2 in")))
sketch6.addConstraint(Sketcher.Constraint("DistanceY", 1, 1, 1, 2, Q("37 in")))
sketch6.addConstraint(Sketcher.Constraint("DistanceY", 3, 1, 3, 2, Q("33 in")))
sketch6.addConstraint(Sketcher.Constraint("DistanceY", 7, 2, 7, 1, Q("25 in")))
sketch6.addConstraint(Sketcher.Constraint("DistanceY", 13, 1, 13, 2, Q("139 in")))
sketch6.addConstraint(Sketcher.Constraint("DistanceX", 2, 1, 2, 2, Q("63.5 in")))
sketch6.addConstraint(Sketcher.Constraint("DistanceX", 10, 1, 10, 2, Q("33.5 in")))
sketch6.addConstraint(Sketcher.Constraint("DistanceX", 0, 2, -1, 1, Q("178 in")))
sketch6.addConstraint(Sketcher.Constraint("DistanceY", 0, 2, -1, 1, 882.660239))
pad6 = body5.newObject("PartDesign::Pad", "Pad005")
pad6.Profile = sketch6
pad6.Length = Q("80 in")
body6 = doc.addObject("PartDesign::Body", "Body005")

# Sketch on XY plane
sketch7 = body6.newObject("Sketcher::SketchObject", "Sketch006")
sketch7.AttachmentSupport = (doc.getObject("XY_Plane005"), [""])
sketch7.MapMode = "FlatFace"
sketch7.AttachmentOffset = App.Placement(Vector(0, 0, 80 * 25.4), App.Rotation())
sketch7.addGeometry(Part.LineSegment(Vector(-4521.2, 4375.139761, 0), Vector(-4521.2, 895.339761, 0)), False)
sketch7.addGeometry(Part.LineSegment(Vector(-4521.2, 895.339761, 0), Vector(-3721.1, 895.339761, 0)), False)
sketch7.addGeometry(Part.LineSegment(Vector(-3721.1, 895.339761, 0), Vector(-3721.1, 4375.139761, 0)), False)
sketch7.addGeometry(Part.LineSegment(Vector(-3721.1, 4375.139761, 0), Vector(-4521.2, 4375.139761, 0)), False)
sketch7.addConstraint(Sketcher.Constraint("Coincident", 0, 2, 1, 1))
sketch7.addConstraint(Sketcher.Constraint("Coincident", 1, 2, 2, 1))
sketch7.addConstraint(Sketcher.Constraint("Coincident", 2, 2, 3, 1))
sketch7.addConstraint(Sketcher.Constraint("Coincident", 3, 2, 0, 1))
sketch7.addConstraint(Sketcher.Constraint("Vertical", 0))
sketch7.addConstraint(Sketcher.Constraint("Horizontal", 1))
sketch7.addConstraint(Sketcher.Constraint("Vertical", 2))
sketch7.addConstraint(Sketcher.Constraint("Horizontal", 3))
sketch7.addConstraint(Sketcher.Constraint("DistanceY", 0, 2, 0, 1, Q("137 in")))
sketch7.addConstraint(Sketcher.Constraint("DistanceX", 1, 1, 1, 2, Q("31.5 in")))
sketch7.addConstraint(Sketcher.Constraint("DistanceX", 0, 2, -1, 1, Q("178 in")))
sketch7.addConstraint(Sketcher.Constraint("DistanceY", -1, 1, 0, 2, 895.339761))
pad7 = body6.newObject("PartDesign::Pad", "Pad006")
pad7.Profile = sketch7
pad7.Length = Q("12 in")
pad7.Reversed = True
body7 = doc.addObject("PartDesign::Body", "Body006")

# Sketch on XY plane
sketch8 = body7.newObject("Sketcher::SketchObject", "Sketch007")
sketch8.AttachmentSupport = (doc.getObject("XY_Plane006"), [""])
sketch8.MapMode = "FlatFace"
sketch8.AttachmentOffset = App.Placement(Vector(0, 0, 80 * 25.4), App.Rotation())
sketch8.addGeometry(Part.LineSegment(Vector(-4521.2, 793.739761, 0), Vector(-4521.2, 158.739761, 0)), False)
sketch8.addGeometry(Part.LineSegment(Vector(-4521.2, 158.739761, 0), Vector(-3721.1, 158.739761, 0)), False)
sketch8.addGeometry(Part.LineSegment(Vector(-3721.1, 158.739761, 0), Vector(-3721.1, 793.739761, 0)), False)
sketch8.addGeometry(Part.LineSegment(Vector(-3721.1, 793.739761, 0), Vector(-4521.2, 793.739761, 0)), False)
sketch8.addConstraint(Sketcher.Constraint("Coincident", 0, 2, 1, 1))
sketch8.addConstraint(Sketcher.Constraint("Coincident", 1, 2, 2, 1))
sketch8.addConstraint(Sketcher.Constraint("Coincident", 2, 2, 3, 1))
sketch8.addConstraint(Sketcher.Constraint("Coincident", 3, 2, 0, 1))
sketch8.addConstraint(Sketcher.Constraint("Vertical", 0))
sketch8.addConstraint(Sketcher.Constraint("Horizontal", 1))
sketch8.addConstraint(Sketcher.Constraint("Vertical", 2))
sketch8.addConstraint(Sketcher.Constraint("Horizontal", 3))
sketch8.addConstraint(Sketcher.Constraint("DistanceY", 0, 2, 0, 1, Q("25 in")))
sketch8.addConstraint(Sketcher.Constraint("DistanceX", 1, 1, 1, 2, Q("31.5 in")))
sketch8.addConstraint(Sketcher.Constraint("DistanceX", 0, 2, -1, 1, Q("178 in")))
sketch8.addConstraint(Sketcher.Constraint("DistanceY", -1, 1, 0, 2, 158.739761))
pad8 = body7.newObject("PartDesign::Pad", "Pad007")
pad8.Profile = sketch8
pad8.Length = Q("12 in")
pad8.Reversed = True
body8 = doc.addObject("PartDesign::Body", "Body007")

# Sketch on XY plane
sketch9 = body8.newObject("Sketcher::SketchObject", "Sketch008")
sketch9.AttachmentSupport = (doc.getObject("XY_Plane007"), [""])
sketch9.MapMode = "FlatFace"
sketch9.AttachmentOffset = App.Placement(Vector(0, 0, 80 * 25.4), App.Rotation())
sketch9.addGeometry(Part.LineSegment(Vector(-4521.2, 57.139761, 0), Vector(-4521.2, -882.660239, 0)), False)
sketch9.addGeometry(Part.LineSegment(Vector(-4521.2, -882.660239, 0), Vector(-3721.1, -882.660239, 0)), False)
sketch9.addGeometry(Part.LineSegment(Vector(-3721.1, -882.660239, 0), Vector(-3721.1, 57.139761, 0)), False)
sketch9.addGeometry(Part.LineSegment(Vector(-3721.1, 57.139761, 0), Vector(-4521.2, 57.139761, 0)), False)
sketch9.addConstraint(Sketcher.Constraint("Coincident", 0, 2, 1, 1))
sketch9.addConstraint(Sketcher.Constraint("Coincident", 1, 2, 2, 1))
sketch9.addConstraint(Sketcher.Constraint("Coincident", 2, 2, 3, 1))
sketch9.addConstraint(Sketcher.Constraint("Coincident", 3, 2, 0, 1))
sketch9.addConstraint(Sketcher.Constraint("Vertical", 0))
sketch9.addConstraint(Sketcher.Constraint("Horizontal", 1))
sketch9.addConstraint(Sketcher.Constraint("Vertical", 2))
sketch9.addConstraint(Sketcher.Constraint("Horizontal", 3))
sketch9.addConstraint(Sketcher.Constraint("DistanceY", 0, 2, 0, 1, Q("37 in")))
sketch9.addConstraint(Sketcher.Constraint("DistanceX", 1, 1, 1, 2, Q("31.5 in")))
sketch9.addConstraint(Sketcher.Constraint("DistanceX", 0, 2, -1, 1, Q("178 in")))
sketch9.addConstraint(Sketcher.Constraint("DistanceY", 0, 2, -1, 1, 882.660239))
pad9 = body8.newObject("PartDesign::Pad", "Pad008")
pad9.Profile = sketch9
pad9.Length = Q("12 in")
pad9.Reversed = True

doc.recompute()
